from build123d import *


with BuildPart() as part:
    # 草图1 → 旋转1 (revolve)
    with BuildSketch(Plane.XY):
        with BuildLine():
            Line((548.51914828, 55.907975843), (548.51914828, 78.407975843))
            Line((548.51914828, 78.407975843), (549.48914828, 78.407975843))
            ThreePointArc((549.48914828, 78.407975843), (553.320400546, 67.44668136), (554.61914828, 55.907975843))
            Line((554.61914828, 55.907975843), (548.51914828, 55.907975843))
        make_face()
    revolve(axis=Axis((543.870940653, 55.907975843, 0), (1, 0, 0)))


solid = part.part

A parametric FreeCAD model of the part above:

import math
import FreeCAD as App
import Part
import Sketcher
from FreeCAD import Vector

doc = App.newDocument("Part")
body = doc.addObject("PartDesign::Body", "Body")

# Sketch on XY plane
sketch1 = doc.addObject("Sketcher::SketchObject", "Sketch")
body.addObject(sketch1)
sketch1.AttachmentSupport = (doc.XY_Plane, [""])
sketch1.MapMode = "FlatFace"
sketch1.addGeometry([
    Part.LineSegment(Vector(548.5, 78.4, 0), Vector(548.5, 55.9, 0)),
    Part.LineSegment(Vector(548.5, 55.9, 0), Vector(554.6, 55.9, 0)),
    Part.ArcOfCircle(Part.Circle(Vector(502.7, 55.9, 0), Vector(0, 0, 1), 51.9), math.radians(0), math.radians(26)),
    Part.LineSegment(Vector(549.5, 78.4, 0), Vector(548.5, 78.4, 0)),
], False)
sketch1.addGeometry(Part.LineSegment(Vector(502.7, 55.9, 0), Vector(554.6, 55.9, 0)), True)  # axis
sketch1.addConstraint([
    Sketcher.Constraint("Coincident", 0, 2, 1, 1),
    Sketcher.Constraint("Coincident", 1, 2, 2, 1),
    Sketcher.Constraint("Coincident", 2, 2, 3, 1),
    Sketcher.Constraint("Coincident", 3, 2, 0, 1),
    Sketcher.Constraint("Vertical", 0),
    Sketcher.Constraint("Horizontal", 1),
    Sketcher.Constraint("Horizontal", 3),
    Sketcher.Constraint("Horizontal", 4),
    Sketcher.Constraint("Coincident", 4, 1, 2, 3),
    Sketcher.Constraint("Coincident", 4, 2, 1, 2),
    Sketcher.Constraint("DistanceX", 1, 1, 1, 2, 6.1),
    Sketcher.Constraint("DistanceY", 0, 2, 0, 1, 22.5),
    Sketcher.Constraint("DistanceX", 3, 2, 3, 1, 0.97),
    Sketcher.Constraint("DistanceX", -1, 1, 0, 2, 548.519148),
    Sketcher.Constraint("DistanceY", -1, 1, 2, 3, 55.907976),
])
revolution = doc.addObject("PartDesign::Revolution", "Revolution")
body.addObject(revolution)
revolution.Profile = sketch1
revolution.ReferenceAxis = (sketch1, ["Axis0"])
revolution.Angle = 360

doc.recompute()
